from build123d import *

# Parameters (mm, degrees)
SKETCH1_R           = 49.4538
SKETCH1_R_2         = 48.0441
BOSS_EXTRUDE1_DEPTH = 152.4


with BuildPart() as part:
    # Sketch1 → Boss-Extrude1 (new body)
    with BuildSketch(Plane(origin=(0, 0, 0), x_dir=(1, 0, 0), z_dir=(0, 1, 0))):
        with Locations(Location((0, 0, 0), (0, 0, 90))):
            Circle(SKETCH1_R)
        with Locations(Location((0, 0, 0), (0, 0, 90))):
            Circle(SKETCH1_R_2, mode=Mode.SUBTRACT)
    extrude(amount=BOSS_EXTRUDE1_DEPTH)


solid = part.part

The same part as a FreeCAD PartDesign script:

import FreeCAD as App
import Part
import Sketcher

V = App.Vector
Q = App.Units.Quantity

doc = App.newDocument("Part")
body = doc.addObject("PartDesign::Body", "Body")

sketch1 = doc.addObject("Sketcher::SketchObject", "Sketch")
body.addObject(sketch1)
sketch1.AttachmentSupport = (doc.XZ_Plane, [""])
sketch1.MapMode = "FlatFace"
sketch1.addGeometry(Part.Circle(V(0, 0, 0), V(0, 0, 1), 49), False)
sketch1.addGeometry(Part.Circle(V(0, 0, 0), V(0, 0, 1), 48), False)
sketch1.addConstraint(Sketcher.Constraint("Coincident", 0, 3, -1, 1))
sketch1.addConstraint(Sketcher.Constraint("Coincident", 1, 3, -1, 1))
sketch1.addConstraint(Sketcher.Constraint("Diameter", 0, Q("3.894 in")))
sketch1.addConstraint(Sketcher.Constraint("Diameter", 1, Q("3.783 in")))
pad1 = doc.addObject("PartDesign::Pad", "Pad")
body.addObject(pad1)
pad1.Profile = sketch1
pad1.Length = Q("6 in")
pad1.Reversed = True

doc.recompute()
